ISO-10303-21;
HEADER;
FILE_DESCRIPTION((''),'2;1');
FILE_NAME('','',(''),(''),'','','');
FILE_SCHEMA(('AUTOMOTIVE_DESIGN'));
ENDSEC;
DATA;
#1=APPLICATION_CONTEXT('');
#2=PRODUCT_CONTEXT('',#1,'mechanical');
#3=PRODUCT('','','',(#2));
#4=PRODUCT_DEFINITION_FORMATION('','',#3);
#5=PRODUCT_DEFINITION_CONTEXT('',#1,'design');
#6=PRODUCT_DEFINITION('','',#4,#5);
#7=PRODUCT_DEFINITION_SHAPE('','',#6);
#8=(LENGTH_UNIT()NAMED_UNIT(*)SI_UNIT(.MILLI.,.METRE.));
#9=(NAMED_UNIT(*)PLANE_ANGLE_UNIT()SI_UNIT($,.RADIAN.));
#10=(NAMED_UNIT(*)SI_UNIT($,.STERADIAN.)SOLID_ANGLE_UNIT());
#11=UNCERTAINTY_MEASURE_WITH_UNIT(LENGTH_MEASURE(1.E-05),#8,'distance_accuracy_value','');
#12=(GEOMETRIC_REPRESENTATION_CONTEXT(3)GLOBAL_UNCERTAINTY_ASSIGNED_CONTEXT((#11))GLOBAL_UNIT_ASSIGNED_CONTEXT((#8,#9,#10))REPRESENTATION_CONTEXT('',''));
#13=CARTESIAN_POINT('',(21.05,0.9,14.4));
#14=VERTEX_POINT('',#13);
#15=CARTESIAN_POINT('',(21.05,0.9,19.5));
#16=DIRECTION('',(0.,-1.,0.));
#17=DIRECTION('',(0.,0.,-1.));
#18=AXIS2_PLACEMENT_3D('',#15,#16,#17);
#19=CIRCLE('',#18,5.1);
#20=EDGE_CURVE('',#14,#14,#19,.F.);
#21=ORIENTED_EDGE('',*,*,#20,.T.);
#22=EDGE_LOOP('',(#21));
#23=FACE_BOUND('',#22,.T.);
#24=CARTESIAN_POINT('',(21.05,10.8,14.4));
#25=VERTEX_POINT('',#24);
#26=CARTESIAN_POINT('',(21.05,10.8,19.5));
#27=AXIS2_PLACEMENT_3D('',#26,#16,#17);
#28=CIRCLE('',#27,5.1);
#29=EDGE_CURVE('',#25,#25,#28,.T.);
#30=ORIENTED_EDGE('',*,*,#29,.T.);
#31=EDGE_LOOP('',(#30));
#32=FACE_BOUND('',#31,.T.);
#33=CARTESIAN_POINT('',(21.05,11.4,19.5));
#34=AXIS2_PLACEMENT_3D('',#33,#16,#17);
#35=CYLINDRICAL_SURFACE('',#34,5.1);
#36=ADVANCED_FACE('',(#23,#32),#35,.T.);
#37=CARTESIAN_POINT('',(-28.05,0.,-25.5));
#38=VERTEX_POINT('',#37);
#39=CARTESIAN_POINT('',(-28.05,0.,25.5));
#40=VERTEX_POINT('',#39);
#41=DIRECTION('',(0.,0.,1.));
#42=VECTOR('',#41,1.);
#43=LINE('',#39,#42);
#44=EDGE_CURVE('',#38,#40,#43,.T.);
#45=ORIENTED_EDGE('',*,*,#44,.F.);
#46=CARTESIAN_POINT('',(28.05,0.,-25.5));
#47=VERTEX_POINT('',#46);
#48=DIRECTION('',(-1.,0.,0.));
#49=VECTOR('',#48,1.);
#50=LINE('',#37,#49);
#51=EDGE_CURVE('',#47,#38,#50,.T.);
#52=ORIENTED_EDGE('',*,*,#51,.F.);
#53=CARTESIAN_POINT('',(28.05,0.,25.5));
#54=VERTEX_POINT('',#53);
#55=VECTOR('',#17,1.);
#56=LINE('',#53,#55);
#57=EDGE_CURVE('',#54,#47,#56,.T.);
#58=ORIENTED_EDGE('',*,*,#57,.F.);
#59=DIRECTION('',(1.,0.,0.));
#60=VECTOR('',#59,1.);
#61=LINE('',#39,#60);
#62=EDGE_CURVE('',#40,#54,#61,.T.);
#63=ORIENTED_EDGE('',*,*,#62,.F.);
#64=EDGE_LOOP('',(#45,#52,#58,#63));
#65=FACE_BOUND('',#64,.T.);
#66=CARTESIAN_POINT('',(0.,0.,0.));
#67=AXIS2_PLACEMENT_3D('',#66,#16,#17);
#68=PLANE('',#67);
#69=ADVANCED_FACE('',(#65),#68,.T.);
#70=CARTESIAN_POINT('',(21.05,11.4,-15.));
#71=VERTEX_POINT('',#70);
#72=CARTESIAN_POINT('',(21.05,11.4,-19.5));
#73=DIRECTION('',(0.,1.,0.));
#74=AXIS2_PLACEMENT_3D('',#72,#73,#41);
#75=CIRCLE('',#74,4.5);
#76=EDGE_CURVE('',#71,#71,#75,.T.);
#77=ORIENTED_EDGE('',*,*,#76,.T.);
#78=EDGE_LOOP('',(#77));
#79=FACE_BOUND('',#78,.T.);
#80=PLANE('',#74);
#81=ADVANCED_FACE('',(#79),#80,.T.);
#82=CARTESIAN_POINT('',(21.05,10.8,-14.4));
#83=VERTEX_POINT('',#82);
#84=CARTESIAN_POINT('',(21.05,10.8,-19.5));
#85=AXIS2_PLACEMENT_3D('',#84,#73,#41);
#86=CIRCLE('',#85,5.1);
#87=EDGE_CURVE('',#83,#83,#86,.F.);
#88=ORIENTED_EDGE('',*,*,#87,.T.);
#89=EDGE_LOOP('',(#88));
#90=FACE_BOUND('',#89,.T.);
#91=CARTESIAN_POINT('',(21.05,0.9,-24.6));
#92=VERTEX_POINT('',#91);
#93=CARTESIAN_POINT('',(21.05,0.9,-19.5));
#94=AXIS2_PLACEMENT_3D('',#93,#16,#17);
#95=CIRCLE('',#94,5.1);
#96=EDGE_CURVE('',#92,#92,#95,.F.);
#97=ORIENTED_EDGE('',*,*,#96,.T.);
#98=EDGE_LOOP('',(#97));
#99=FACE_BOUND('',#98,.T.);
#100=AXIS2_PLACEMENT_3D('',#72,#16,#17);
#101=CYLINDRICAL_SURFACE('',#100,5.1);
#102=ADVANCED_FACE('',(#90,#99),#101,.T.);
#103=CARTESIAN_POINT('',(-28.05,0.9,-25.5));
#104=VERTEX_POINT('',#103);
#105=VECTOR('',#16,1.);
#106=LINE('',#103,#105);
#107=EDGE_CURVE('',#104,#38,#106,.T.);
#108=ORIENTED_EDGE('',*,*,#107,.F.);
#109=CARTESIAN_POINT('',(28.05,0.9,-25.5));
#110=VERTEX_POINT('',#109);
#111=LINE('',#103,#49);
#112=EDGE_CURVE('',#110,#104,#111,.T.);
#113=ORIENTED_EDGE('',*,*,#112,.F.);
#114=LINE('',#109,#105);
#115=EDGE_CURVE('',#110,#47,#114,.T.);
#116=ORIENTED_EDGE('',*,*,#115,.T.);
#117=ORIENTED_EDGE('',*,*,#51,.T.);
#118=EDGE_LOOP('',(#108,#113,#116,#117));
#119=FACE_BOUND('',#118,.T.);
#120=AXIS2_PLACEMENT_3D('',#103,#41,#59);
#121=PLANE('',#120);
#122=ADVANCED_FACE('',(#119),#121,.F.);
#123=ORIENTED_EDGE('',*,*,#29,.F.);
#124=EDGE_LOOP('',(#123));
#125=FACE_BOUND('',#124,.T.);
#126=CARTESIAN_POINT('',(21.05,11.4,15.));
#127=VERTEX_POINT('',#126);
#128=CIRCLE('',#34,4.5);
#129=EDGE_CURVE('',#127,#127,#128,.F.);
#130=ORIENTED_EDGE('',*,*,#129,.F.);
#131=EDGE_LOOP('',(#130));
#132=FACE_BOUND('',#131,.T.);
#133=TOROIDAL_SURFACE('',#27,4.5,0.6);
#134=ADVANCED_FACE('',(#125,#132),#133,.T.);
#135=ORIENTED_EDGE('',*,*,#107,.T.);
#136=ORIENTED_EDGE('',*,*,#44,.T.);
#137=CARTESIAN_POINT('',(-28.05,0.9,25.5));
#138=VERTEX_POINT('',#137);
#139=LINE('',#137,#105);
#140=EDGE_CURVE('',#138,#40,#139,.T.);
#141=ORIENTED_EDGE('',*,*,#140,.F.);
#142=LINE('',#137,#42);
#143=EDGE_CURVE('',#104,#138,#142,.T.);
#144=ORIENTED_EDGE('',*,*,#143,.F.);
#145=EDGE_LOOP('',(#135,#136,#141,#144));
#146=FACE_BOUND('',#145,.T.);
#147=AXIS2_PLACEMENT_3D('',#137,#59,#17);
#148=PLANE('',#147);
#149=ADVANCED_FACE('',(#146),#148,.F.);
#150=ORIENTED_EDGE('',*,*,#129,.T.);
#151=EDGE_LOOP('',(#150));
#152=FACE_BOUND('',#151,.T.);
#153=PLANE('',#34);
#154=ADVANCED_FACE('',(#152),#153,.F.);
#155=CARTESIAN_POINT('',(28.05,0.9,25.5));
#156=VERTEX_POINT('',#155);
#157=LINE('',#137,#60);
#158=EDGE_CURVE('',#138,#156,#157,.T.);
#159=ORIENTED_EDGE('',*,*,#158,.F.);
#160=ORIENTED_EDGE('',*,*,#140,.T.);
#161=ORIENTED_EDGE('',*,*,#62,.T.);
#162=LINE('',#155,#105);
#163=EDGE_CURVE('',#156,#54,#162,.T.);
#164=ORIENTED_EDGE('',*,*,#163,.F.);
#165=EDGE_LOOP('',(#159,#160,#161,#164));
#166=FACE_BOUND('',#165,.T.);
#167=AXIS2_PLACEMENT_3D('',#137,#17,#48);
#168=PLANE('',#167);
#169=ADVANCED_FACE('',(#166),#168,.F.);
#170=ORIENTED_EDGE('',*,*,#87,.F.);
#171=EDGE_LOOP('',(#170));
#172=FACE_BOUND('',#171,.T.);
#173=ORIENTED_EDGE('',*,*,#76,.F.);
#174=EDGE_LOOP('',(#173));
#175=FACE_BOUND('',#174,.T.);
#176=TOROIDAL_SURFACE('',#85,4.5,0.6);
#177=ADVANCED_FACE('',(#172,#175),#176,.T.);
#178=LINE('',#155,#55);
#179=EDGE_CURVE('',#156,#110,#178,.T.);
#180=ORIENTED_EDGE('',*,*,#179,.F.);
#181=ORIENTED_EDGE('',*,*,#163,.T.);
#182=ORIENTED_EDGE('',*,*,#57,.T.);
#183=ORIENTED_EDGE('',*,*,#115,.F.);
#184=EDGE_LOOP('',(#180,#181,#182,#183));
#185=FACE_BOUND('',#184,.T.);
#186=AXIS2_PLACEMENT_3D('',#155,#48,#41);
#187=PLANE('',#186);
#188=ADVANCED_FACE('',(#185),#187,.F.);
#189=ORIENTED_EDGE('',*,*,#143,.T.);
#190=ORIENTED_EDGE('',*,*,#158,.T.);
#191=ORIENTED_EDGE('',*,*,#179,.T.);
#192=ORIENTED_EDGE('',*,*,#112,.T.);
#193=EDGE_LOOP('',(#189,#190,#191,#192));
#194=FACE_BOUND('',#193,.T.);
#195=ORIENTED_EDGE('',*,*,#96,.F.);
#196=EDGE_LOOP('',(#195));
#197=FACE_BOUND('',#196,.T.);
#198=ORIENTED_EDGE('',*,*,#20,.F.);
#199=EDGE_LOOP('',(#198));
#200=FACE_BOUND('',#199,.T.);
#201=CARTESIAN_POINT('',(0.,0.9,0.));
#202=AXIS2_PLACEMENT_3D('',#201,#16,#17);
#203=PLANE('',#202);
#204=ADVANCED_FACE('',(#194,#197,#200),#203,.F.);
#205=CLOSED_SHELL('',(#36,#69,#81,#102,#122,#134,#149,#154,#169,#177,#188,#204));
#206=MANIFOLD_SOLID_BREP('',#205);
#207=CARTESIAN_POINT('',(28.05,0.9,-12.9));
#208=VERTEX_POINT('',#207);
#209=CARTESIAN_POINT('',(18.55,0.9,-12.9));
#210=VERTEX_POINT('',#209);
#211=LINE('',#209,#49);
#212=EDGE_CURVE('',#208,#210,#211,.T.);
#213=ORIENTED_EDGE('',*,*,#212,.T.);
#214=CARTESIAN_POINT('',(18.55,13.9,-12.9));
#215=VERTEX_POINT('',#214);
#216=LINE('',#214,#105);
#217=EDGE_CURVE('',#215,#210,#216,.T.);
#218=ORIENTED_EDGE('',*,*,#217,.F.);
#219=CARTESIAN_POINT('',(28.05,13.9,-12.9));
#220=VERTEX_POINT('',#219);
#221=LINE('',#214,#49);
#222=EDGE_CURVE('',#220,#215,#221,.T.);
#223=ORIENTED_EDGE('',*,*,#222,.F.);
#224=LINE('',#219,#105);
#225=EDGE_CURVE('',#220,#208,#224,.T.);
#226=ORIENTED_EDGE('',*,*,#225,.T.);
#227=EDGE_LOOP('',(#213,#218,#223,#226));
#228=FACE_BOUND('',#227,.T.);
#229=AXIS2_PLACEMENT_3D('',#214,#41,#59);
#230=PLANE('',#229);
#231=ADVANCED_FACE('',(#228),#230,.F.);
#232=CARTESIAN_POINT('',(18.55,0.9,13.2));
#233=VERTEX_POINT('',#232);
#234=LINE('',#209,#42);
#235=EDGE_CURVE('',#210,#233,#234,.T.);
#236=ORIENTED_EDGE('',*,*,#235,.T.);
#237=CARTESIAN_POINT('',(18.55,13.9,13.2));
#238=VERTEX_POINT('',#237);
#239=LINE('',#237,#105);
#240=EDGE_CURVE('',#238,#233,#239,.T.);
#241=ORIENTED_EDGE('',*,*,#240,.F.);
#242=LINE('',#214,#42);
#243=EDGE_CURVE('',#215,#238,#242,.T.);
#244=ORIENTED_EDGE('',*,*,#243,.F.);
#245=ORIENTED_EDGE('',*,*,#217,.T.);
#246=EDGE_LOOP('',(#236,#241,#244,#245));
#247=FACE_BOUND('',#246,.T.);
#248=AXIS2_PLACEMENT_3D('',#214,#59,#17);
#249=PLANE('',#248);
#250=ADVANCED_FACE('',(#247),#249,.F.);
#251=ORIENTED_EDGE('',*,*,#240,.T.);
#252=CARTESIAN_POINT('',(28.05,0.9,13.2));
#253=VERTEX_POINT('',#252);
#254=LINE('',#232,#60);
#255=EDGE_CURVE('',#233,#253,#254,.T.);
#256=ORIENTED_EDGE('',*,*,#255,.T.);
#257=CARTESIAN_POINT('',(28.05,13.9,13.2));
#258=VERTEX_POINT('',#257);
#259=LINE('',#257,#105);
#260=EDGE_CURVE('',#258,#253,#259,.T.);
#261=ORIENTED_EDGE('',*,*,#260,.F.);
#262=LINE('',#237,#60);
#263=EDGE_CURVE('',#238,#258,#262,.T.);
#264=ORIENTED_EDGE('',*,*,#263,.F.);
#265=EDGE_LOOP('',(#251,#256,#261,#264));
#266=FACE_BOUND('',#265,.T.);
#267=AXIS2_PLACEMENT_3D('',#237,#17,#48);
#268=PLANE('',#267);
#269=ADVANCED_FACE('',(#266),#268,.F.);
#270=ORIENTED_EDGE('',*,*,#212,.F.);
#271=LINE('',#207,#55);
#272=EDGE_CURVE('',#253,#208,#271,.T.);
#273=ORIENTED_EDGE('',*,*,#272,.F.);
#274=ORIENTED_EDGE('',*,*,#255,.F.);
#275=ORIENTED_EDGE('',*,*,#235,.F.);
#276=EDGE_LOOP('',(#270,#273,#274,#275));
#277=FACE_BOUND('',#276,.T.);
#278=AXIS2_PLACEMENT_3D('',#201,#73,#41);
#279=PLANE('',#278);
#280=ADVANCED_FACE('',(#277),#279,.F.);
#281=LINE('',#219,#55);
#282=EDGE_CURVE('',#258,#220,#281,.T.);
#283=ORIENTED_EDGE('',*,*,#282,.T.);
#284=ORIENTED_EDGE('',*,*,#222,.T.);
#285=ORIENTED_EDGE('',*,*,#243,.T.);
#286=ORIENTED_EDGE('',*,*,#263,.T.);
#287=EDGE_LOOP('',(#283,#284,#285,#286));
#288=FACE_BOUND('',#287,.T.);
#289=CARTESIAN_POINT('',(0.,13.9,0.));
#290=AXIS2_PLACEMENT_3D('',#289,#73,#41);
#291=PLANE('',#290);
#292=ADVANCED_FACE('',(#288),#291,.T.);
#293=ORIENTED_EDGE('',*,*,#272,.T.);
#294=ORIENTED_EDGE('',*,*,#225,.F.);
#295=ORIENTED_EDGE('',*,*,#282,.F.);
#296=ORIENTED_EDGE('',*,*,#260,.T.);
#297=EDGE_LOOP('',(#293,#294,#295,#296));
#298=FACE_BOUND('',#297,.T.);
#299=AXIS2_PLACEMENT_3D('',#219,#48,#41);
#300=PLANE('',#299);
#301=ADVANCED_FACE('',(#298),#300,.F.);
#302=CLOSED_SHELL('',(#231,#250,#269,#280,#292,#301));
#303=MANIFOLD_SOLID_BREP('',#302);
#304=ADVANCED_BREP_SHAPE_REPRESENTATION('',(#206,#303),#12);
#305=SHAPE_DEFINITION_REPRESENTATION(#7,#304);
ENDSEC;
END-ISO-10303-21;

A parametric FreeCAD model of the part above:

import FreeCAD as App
import Part
import Sketcher
Q = App.Units.Quantity


def edges_at(feature, points):
    """Names of the edges that pass closest to the given points."""
    edges = feature.Shape.Edges
    near = lambda p: min(range(len(edges)), key=lambda i: edges[i].distToShape(Part.Vertex(*p))[0])
    return sorted({f"Edge{near(p) + 1}" for p in points})


def add_polygon(sketch, points):
    """Adds a closed chain of lines whose ends are joined by coincident constraints."""
    first, n = sketch.GeometryCount, len(points)
    for a, b in zip(points, points[1:] + points[:1]):
        sketch.addGeometry(Part.LineSegment(App.Vector(*a, 0), App.Vector(*b, 0)), False)
    for i in range(n):
        sketch.addConstraint(Sketcher.Constraint("Coincident", first + i, 2, first + (i + 1) % n, 1))

doc = App.newDocument("Part")
body = doc.addObject("PartDesign::Body", "Body")

# Sketch on XZ plane
sketch1 = doc.addObject("Sketcher::SketchObject", "Sketch")
body.addObject(sketch1)
sketch1.AttachmentSupport = (doc.XZ_Plane, [""])
sketch1.MapMode = "FlatFace"
add_polygon(sketch1, [(-28, -26), (-28, 26), (28, 26), (28, -26)])  # lines 0-3
sketch1.addConstraint([
    Sketcher.Constraint("Vertical", 0),
    Sketcher.Constraint("Horizontal", 1),
    Sketcher.Constraint("Vertical", 2),
    Sketcher.Constraint("Horizontal", 3),
    Sketcher.Constraint("Symmetric", 0, 2, 2, 2, -1, 1),
    Sketcher.Constraint("DistanceY", 0, 1, 0, 2, Q("51 mm")),
    Sketcher.Constraint("DistanceX", 1, 1, 1, 2, Q("56.1 mm")),
])
pad1 = doc.addObject("PartDesign::Pad", "Pad")
body.addObject(pad1)
pad1.Profile = sketch1
pad1.Length = 0.9
pad1.Reversed = True

# Sketch on XZ plane
sketch2 = doc.addObject("Sketcher::SketchObject", "Sketch001")
body.addObject(sketch2)
sketch2.AttachmentSupport = (doc.XZ_Plane, [""])
sketch2.MapMode = "FlatFace"
sketch2.AttachmentOffset = App.Placement(App.Vector(0, 0, -0.9), App.Rotation())
sketch2.addGeometry([
    Part.Circle(App.Vector(21, -20, 0), App.Vector(0, 0, 1), 5),
    Part.Circle(App.Vector(21, 20, 0), App.Vector(0, 0, 1), 5),
], False)
sketch2.addConstraint([
    Sketcher.Constraint("Equal", 0, 1),
    Sketcher.Constraint("Symmetric", 0, 3, 1, 3, -1),
    Sketcher.Constraint("Diameter", 0, Q("10.2 mm")),
    Sketcher.Constraint("DistanceY", 0, 3, 1, 3, Q("39 mm")),
    Sketcher.Constraint("DistanceX", -1, 1, 0, 3, Q("21.05 mm")),
])
pad2 = doc.addObject("PartDesign::Pad", "Pad001")
body.addObject(pad2)
pad2.Profile = sketch2
pad2.Length = 10.5
pad2.Reversed = True
doc.recompute()

fillet = doc.addObject("PartDesign::Fillet", "Fillet")
body.addObject(fillet)
fillet.Base = (pad2, edges_at(pad2, [(15.95, 11.4, -19.5), (15.95, 11.4, 19.5)]))
fillet.Radius = 0.6
body2 = doc.addObject("PartDesign::Body", "Body001")

# Sketch on XZ plane
sketch3 = doc.addObject("Sketcher::SketchObject", "Sketch002")
body2.addObject(sketch3)
sketch3.AttachmentSupport = (doc.getObject("XZ_Plane001"), [""])
sketch3.MapMode = "FlatFace"
sketch3.AttachmentOffset = App.Placement(App.Vector(0, 0, -0.9), App.Rotation())
add_polygon(sketch3, [(19, -13), (19, 13), (28, 13), (28, -13)])  # lines 0-3
sketch3.addConstraint([
    Sketcher.Constraint("Vertical", 0),
    Sketcher.Constraint("Horizontal", 1),
    Sketcher.Constraint("Vertical", 2),
    Sketcher.Constraint("Horizontal", 3),
    Sketcher.Constraint("DistanceX", 1, 1, 1, 2, Q("9.5 mm")),
    Sketcher.Constraint("DistanceY", 0, 1, 0, 2, Q("26.1 mm")),
    Sketcher.Constraint("DistanceY", -1, 1, 0, 2, Q("13.2 mm")),
    Sketcher.Constraint("DistanceX", -1, 1, 0, 2, Q("18.55 mm")),
])
pad3 = doc.addObject("PartDesign::Pad", "Pad002")
body2.addObject(pad3)
pad3.Profile = sketch3
pad3.Length = 13
pad3.Reversed = True

doc.recompute()
